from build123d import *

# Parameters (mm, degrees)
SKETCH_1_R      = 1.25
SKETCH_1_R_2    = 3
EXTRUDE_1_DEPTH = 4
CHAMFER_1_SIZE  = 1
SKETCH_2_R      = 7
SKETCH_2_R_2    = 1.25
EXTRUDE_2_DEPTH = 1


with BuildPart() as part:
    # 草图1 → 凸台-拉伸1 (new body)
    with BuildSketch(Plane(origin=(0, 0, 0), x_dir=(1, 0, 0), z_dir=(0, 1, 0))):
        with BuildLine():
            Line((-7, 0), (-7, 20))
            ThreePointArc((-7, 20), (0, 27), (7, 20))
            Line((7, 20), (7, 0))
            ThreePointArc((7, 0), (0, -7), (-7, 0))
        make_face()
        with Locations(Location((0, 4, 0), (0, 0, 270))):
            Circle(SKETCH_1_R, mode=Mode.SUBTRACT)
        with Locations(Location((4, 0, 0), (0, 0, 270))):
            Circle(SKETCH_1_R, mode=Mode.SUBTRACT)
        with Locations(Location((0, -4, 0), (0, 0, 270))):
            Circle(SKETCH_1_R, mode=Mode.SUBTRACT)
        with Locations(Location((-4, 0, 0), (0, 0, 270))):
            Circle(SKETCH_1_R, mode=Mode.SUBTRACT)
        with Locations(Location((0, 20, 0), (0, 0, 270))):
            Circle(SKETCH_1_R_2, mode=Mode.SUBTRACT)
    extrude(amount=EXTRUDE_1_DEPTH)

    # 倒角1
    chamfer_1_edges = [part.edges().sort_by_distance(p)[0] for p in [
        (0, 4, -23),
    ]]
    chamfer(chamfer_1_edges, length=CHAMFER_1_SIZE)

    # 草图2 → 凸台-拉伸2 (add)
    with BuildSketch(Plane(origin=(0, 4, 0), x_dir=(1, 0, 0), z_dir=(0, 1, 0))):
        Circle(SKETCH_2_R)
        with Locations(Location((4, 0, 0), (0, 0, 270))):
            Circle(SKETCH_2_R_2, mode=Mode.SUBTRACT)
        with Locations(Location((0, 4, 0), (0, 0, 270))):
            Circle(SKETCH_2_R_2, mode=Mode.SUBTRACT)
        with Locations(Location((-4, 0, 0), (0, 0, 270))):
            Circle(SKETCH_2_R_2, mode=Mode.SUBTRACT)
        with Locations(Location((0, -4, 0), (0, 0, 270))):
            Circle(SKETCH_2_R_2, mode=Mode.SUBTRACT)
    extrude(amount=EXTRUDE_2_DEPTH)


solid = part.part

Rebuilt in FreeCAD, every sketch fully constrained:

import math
import FreeCAD as App
import Part
import Sketcher
from FreeCAD import Vector
Q = App.Units.Quantity


def edges_at(feature, points):
    """Names of the edges that pass closest to the given points."""
    edges = feature.Shape.Edges
    near = lambda p: min(range(len(edges)), key=lambda i: edges[i].distToShape(Part.Vertex(*p))[0])
    return sorted({f"Edge{near(p) + 1}" for p in points})

doc = App.newDocument("Part")
body = doc.addObject("PartDesign::Body", "Body")

sketch1 = body.newObject("Sketcher::SketchObject", "Sketch")
sketch1.AttachmentSupport = (doc.getObject("XZ_Plane"), [""])
sketch1.MapMode = "FlatFace"
sketch1.addGeometry(Part.LineSegment(Vector(-7, -20, 0), Vector(-7, 0, 0)), False)
sketch1.addGeometry(Part.ArcOfCircle(Part.Circle(Vector(0, 0, 0), Vector(0, 0, 1), 7), math.radians(0), math.radians(180)), False)
sketch1.addGeometry(Part.LineSegment(Vector(7, 0, 0), Vector(7, -20, 0)), False)
sketch1.addGeometry(Part.ArcOfCircle(Part.Circle(Vector(0, -20, 0), Vector(0, 0, 1), 7), math.radians(180), math.radians(360)), False)
sketch1.addGeometry(Part.Circle(Vector(4, 0, 0), Vector(0, 0, 1), 1.25), False)
sketch1.addGeometry(Part.Circle(Vector(0, 4, 0), Vector(0, 0, 1), 1.25), False)
sketch1.addGeometry(Part.Circle(Vector(-4, 0, 0), Vector(0, 0, 1), 1.25), False)
sketch1.addGeometry(Part.Circle(Vector(0, -4, 0), Vector(0, 0, 1), 1.25), False)
sketch1.addGeometry(Part.Circle(Vector(0, -20, 0), Vector(0, 0, 1), 3), False)
sketch1.addConstraint(Sketcher.Constraint("Tangent", 0, 2, 1, 2))
sketch1.addConstraint(Sketcher.Constraint("Tangent", 1, 1, 2, 1))
sketch1.addConstraint(Sketcher.Constraint("Tangent", 2, 2, 3, 2))
sketch1.addConstraint(Sketcher.Constraint("Tangent", 3, 1, 0, 1))
sketch1.addConstraint(Sketcher.Constraint("Vertical", 0))
sketch1.addConstraint(Sketcher.Constraint("Vertical", 2))
sketch1.addConstraint(Sketcher.Constraint("Coincident", 1, 3, -1, 1))
sketch1.addConstraint(Sketcher.Constraint("Coincident", 8, 3, 3, 3))
sketch1.addConstraint(Sketcher.Constraint("Equal", 4, 5))
sketch1.addConstraint(Sketcher.Constraint("Equal", 5, 6))
sketch1.addConstraint(Sketcher.Constraint("Equal", 6, 7))
sketch1.addConstraint(Sketcher.Constraint("Symmetric", 4, 3, 6, 3, -1, 1))
sketch1.addConstraint(Sketcher.Constraint("Symmetric", 5, 3, 7, 3, -1, 1))
sketch1.addConstraint(Sketcher.Constraint("PointOnObject", 4, 3, -1))
sketch1.addConstraint(Sketcher.Constraint("PointOnObject", 5, 3, -2))
sketch1.addConstraint(Sketcher.Constraint("Diameter", 8, Q("6 mm")))
sketch1.addConstraint(Sketcher.Constraint("Radius", 1, Q("7 mm")))
sketch1.addConstraint(Sketcher.Constraint("Diameter", 4, Q("2.5 mm")))
sketch1.addConstraint(Sketcher.Constraint("DistanceY", 0, 1, 0, 2, Q("20 mm")))
sketch1.addConstraint(Sketcher.Constraint("DistanceX", -1, 1, 4, 3, Q("4 mm")))
sketch1.addConstraint(Sketcher.Constraint("DistanceY", -1, 1, 5, 3, Q("4 mm")))
pad1 = body.newObject("PartDesign::Pad", "Pad")
pad1.Profile = sketch1
pad1.Length = 4
pad1.Reversed = True
doc.recompute()

chamfer = body.newObject("PartDesign::Chamfer", "Chamfer")
chamfer.Base = (pad1, edges_at(pad1, [(0, 4, -23)]))
chamfer.Size = 1

sketch2 = body.newObject("Sketcher::SketchObject", "Sketch001")
sketch2.AttachmentSupport = (doc.getObject("XZ_Plane"), [""])
sketch2.MapMode = "FlatFace"
sketch2.AttachmentOffset = App.Placement(Vector(0, 0, -4), App.Rotation())
sketch2.addGeometry(Part.Circle(Vector(0, 0, 0), Vector(0, 0, 1), 7), False)
sketch2.addGeometry(Part.Circle(Vector(0, 4, 0), Vector(0, 0, 1), 1.25), False)
sketch2.addGeometry(Part.Circle(Vector(-4, 0, 0), Vector(0, 0, 1), 1.25), False)
sketch2.addGeometry(Part.Circle(Vector(4, 0, 0), Vector(0, 0, 1), 1.25), False)
sketch2.addGeometry(Part.Circle(Vector(0, -4, 0), Vector(0, 0, 1), 1.25), False)
sketch2.addConstraint(Sketcher.Constraint("Coincident", 0, 3, -1, 1))
sketch2.addConstraint(Sketcher.Constraint("Equal", 1, 2))
sketch2.addConstraint(Sketcher.Constraint("Equal", 2, 3))
sketch2.addConstraint(Sketcher.Constraint("Equal", 3, 4))
sketch2.addConstraint(Sketcher.Constraint("Symmetric", 2, 3, 3, 3, -1, 1))
sketch2.addConstraint(Sketcher.Constraint("Symmetric", 1, 3, 4, 3, -1, 1))
sketch2.addConstraint(Sketcher.Constraint("PointOnObject", 1, 3, -2))
sketch2.addConstraint(Sketcher.Constraint("PointOnObject", 2, 3, -1))
sketch2.addConstraint(Sketcher.Constraint("Diameter", 0, Q("14 mm")))
sketch2.addConstraint(Sketcher.Constraint("Diameter", 1, Q("2.5 mm")))
sketch2.addConstraint(Sketcher.Constraint("DistanceY", -1, 1, 1, 3, Q("4 mm")))
sketch2.addConstraint(Sketcher.Constraint("DistanceX", 2, 3, -1, 1, Q("4 mm")))
pad2 = body.newObject("PartDesign::Pad", "Pad001")
pad2.Profile = sketch2
pad2.Length = 1
pad2.Reversed = True

doc.recompute()
